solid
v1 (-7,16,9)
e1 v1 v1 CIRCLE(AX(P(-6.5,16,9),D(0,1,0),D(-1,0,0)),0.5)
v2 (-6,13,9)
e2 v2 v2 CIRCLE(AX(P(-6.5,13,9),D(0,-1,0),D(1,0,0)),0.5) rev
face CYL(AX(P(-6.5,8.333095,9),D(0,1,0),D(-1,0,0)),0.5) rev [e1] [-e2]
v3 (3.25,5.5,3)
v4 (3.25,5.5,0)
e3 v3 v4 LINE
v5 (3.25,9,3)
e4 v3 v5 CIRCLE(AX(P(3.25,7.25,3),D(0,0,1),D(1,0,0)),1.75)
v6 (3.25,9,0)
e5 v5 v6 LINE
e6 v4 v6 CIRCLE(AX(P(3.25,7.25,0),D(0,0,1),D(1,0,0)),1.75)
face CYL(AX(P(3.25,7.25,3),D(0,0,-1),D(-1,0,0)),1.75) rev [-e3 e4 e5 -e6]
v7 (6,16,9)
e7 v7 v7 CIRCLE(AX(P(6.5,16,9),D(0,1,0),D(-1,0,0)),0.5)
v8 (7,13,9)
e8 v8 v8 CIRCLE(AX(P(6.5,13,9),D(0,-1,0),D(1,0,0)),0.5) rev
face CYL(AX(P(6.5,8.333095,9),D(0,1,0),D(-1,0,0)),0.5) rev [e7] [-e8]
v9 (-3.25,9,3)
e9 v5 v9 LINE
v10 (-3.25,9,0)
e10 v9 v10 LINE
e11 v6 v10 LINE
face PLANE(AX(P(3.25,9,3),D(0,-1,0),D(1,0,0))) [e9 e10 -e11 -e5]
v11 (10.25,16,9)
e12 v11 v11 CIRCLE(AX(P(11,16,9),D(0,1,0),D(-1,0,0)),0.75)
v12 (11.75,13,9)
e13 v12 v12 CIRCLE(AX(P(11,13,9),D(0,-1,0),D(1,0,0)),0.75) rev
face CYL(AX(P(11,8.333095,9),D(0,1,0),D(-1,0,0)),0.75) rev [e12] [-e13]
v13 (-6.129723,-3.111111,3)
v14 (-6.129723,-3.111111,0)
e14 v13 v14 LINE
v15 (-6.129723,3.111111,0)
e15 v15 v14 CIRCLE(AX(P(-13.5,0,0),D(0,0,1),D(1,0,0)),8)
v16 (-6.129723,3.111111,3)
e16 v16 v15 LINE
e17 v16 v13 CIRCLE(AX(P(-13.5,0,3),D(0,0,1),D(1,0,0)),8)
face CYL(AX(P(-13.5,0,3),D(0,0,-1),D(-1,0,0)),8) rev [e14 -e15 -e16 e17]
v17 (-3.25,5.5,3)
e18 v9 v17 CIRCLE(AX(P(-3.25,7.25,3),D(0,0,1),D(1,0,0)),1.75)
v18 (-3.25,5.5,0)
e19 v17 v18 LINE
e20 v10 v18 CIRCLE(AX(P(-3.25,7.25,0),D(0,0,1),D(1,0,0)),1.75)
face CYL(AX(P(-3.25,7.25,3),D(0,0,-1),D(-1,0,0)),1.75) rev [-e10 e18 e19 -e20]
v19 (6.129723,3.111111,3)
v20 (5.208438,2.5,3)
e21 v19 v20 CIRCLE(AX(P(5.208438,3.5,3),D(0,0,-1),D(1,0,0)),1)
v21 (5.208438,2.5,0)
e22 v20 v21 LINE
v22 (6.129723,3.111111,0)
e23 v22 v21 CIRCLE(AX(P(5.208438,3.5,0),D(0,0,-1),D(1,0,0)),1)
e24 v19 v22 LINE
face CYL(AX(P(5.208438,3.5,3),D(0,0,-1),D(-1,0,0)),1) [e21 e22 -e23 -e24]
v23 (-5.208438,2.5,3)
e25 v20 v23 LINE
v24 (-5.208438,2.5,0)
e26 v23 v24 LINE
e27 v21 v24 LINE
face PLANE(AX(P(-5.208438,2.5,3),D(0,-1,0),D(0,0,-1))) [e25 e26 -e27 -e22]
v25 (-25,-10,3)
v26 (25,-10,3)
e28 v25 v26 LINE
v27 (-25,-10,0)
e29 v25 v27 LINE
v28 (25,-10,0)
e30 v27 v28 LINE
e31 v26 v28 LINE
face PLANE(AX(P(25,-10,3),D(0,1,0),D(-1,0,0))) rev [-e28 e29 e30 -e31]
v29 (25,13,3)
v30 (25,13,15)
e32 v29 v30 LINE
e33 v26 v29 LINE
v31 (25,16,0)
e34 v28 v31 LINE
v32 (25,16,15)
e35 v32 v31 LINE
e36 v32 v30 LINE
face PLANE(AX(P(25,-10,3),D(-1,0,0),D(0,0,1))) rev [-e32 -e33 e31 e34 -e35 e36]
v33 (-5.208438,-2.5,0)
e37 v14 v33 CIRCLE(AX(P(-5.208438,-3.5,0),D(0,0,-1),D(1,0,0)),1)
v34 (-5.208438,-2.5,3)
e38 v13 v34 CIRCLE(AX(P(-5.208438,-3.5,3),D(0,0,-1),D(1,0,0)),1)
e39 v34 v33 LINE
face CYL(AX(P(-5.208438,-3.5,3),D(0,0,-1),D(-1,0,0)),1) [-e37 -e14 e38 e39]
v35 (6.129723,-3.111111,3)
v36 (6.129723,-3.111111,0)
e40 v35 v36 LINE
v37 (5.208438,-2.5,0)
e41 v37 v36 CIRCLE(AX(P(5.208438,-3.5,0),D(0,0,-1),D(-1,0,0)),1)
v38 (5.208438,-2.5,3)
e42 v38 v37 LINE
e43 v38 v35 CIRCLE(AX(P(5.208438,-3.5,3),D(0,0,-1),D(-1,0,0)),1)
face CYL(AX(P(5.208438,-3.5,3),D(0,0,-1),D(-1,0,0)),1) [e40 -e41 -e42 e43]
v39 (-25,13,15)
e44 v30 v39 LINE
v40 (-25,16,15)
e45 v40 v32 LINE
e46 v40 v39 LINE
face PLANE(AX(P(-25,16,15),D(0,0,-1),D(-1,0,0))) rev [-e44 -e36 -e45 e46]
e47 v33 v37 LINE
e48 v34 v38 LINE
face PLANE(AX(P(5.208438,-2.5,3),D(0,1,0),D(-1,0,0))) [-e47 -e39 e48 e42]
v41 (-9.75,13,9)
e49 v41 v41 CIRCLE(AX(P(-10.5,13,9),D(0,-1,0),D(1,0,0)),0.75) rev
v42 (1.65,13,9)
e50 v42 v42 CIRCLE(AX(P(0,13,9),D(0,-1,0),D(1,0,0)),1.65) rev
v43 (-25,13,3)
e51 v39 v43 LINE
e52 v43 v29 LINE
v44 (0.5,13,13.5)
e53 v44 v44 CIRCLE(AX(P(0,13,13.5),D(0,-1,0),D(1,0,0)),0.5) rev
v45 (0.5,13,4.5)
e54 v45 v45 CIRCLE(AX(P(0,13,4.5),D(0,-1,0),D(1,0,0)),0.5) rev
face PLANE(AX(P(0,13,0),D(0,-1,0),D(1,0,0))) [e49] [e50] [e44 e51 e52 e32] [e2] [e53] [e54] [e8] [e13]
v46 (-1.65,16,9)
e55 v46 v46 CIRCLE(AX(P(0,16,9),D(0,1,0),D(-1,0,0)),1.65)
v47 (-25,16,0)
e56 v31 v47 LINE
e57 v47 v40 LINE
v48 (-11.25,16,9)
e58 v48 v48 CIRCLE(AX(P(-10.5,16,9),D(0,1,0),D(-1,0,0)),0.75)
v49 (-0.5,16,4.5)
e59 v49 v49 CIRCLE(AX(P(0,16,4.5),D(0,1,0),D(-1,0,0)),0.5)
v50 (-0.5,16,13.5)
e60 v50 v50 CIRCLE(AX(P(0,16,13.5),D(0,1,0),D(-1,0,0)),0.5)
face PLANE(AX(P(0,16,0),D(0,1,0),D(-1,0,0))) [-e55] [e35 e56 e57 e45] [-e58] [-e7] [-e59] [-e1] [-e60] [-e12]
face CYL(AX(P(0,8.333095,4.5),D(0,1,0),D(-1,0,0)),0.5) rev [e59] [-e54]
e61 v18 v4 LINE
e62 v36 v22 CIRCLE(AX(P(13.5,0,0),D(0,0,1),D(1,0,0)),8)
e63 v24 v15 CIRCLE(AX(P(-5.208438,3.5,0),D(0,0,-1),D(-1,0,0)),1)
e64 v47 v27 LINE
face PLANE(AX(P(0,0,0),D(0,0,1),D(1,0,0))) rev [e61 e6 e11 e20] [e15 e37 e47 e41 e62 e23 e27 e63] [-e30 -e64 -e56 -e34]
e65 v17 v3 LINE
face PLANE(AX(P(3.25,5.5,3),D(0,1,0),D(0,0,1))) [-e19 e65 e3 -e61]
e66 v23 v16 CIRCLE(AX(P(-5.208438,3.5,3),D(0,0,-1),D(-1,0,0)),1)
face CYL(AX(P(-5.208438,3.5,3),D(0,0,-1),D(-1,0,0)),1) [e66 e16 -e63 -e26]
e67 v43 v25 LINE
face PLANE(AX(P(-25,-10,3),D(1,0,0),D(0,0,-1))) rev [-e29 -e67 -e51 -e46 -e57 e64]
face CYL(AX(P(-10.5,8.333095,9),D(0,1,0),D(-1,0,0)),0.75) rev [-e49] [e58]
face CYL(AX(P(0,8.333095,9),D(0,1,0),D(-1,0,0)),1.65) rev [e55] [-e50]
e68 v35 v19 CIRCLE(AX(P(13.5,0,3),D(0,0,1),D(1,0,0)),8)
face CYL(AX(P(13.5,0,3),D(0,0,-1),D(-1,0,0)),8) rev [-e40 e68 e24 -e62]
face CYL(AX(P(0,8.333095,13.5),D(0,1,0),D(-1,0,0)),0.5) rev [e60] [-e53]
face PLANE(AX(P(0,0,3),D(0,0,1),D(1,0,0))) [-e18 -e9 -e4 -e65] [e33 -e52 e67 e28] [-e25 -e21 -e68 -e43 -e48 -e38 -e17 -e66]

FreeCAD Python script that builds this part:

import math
import FreeCAD as App
import Part
import Sketcher
from FreeCAD import Vector
Q = App.Units.Quantity

doc = App.newDocument("Part")
body = doc.addObject("PartDesign::Body", "Body")

sketch1 = body.newObject("Sketcher::SketchObject", "Sketch")
sketch1.AttachmentSupport = (doc.getObject("XY_Plane"), [""])
sketch1.MapMode = "FlatFace"
sketch1.addGeometry(Part.LineSegment(Vector(-25, 10, 0), Vector(-25, -10, 0)), False)
sketch1.addGeometry(Part.LineSegment(Vector(-25, -10, 0), Vector(25, -10, 0)), False)
sketch1.addGeometry(Part.LineSegment(Vector(25, -10, 0), Vector(25, 10, 0)), False)
sketch1.addGeometry(Part.LineSegment(Vector(25, 10, 0), Vector(-25, 10, 0)), False)
sketch1.addGeometry(Part.ArcOfCircle(Part.Circle(Vector(-5.2, 3.5, 0), Vector(0, 0, 1), 1), math.radians(-157), math.radians(-90)), False)
sketch1.addGeometry(Part.LineSegment(Vector(-5.2, 2.5, 0), Vector(5.2, 2.5, 0)), False)
sketch1.addGeometry(Part.ArcOfCircle(Part.Circle(Vector(5.2, 3.5, 0), Vector(0, 0, 1), 1), math.radians(-90), math.radians(-23)), False)
sketch1.addGeometry(Part.ArcOfCircle(Part.Circle(Vector(13.5, 0, 0), Vector(0, 0, 1), 8), math.radians(-157), math.radians(157)), False)
sketch1.addGeometry(Part.ArcOfCircle(Part.Circle(Vector(5.2, -3.5, 0), Vector(0, 0, 1), 1), math.radians(23), math.radians(90)), False)
sketch1.addGeometry(Part.LineSegment(Vector(5.2, -2.5, 0), Vector(-5.2, -2.5, 0)), False)
sketch1.addGeometry(Part.ArcOfCircle(Part.Circle(Vector(-5.2, -3.5, 0), Vector(0, 0, 1), 1), math.radians(90), math.radians(157)), False)
sketch1.addGeometry(Part.ArcOfCircle(Part.Circle(Vector(-13.5, 0, 0), Vector(0, 0, 1), 8), math.radians(23), math.radians(337)), False)
sketch1.addGeometry(Part.ArcOfCircle(Part.Circle(Vector(3.2, 7.2, 0), Vector(0, 0, 1), 1.8), math.radians(-90), math.radians(90)), False)
sketch1.addGeometry(Part.LineSegment(Vector(3.2, 5.5, 0), Vector(-3.2, 5.5, 0)), False)
sketch1.addGeometry(Part.ArcOfCircle(Part.Circle(Vector(-3.2, 7.2, 0), Vector(0, 0, 1), 1.8), math.radians(90), math.radians(270)), False)
sketch1.addGeometry(Part.LineSegment(Vector(-3.2, 9, 0), Vector(3.2, 9, 0)), False)
sketch1.addConstraint(Sketcher.Constraint("Coincident", 0, 2, 1, 1))
sketch1.addConstraint(Sketcher.Constraint("Coincident", 1, 2, 2, 1))
sketch1.addConstraint(Sketcher.Constraint("Coincident", 2, 2, 3, 1))
sketch1.addConstraint(Sketcher.Constraint("Coincident", 3, 2, 0, 1))
sketch1.addConstraint(Sketcher.Constraint("Tangent", 4, 2, 5, 1))
sketch1.addConstraint(Sketcher.Constraint("Tangent", 5, 2, 6, 1))
sketch1.addConstraint(Sketcher.Constraint("Tangent", 6, 2, 7, 2))
sketch1.addConstraint(Sketcher.Constraint("Tangent", 7, 1, 8, 1))
sketch1.addConstraint(Sketcher.Constraint("Tangent", 8, 2, 9, 1))
sketch1.addConstraint(Sketcher.Constraint("Tangent", 9, 2, 10, 1))
sketch1.addConstraint(Sketcher.Constraint("Tangent", 10, 2, 11, 2))
sketch1.addConstraint(Sketcher.Constraint("Tangent", 11, 1, 4, 1))
sketch1.addConstraint(Sketcher.Constraint("Tangent", 12, 1, 13, 1))
sketch1.addConstraint(Sketcher.Constraint("Tangent", 13, 2, 14, 2))
sketch1.addConstraint(Sketcher.Constraint("Tangent", 14, 1, 15, 1))
sketch1.addConstraint(Sketcher.Constraint("Tangent", 15, 2, 12, 2))
sketch1.addConstraint(Sketcher.Constraint("Vertical", 0))
sketch1.addConstraint(Sketcher.Constraint("Horizontal", 1))
sketch1.addConstraint(Sketcher.Constraint("Vertical", 2))
sketch1.addConstraint(Sketcher.Constraint("Horizontal", 3))
sketch1.addConstraint(Sketcher.Constraint("Horizontal", 5))
sketch1.addConstraint(Sketcher.Constraint("Horizontal", 9))
sketch1.addConstraint(Sketcher.Constraint("Horizontal", 13))
sketch1.addConstraint(Sketcher.Constraint("Horizontal", 15))
sketch1.addConstraint(Sketcher.Constraint("Equal", 4, 6))
sketch1.addConstraint(Sketcher.Constraint("Equal", 6, 8))
sketch1.addConstraint(Sketcher.Constraint("Equal", 8, 10))
sketch1.addConstraint(Sketcher.Constraint("Equal", 7, 11))
sketch1.addConstraint(Sketcher.Constraint("Symmetric", 4, 3, 8, 3, -1, 1))
sketch1.addConstraint(Sketcher.Constraint("Symmetric", 0, 2, 2, 2, -1, 1))
sketch1.addConstraint(Sketcher.Constraint("Symmetric", 7, 3, 11, 3, -2))
sketch1.addConstraint(Sketcher.Constraint("Radius", 4, Q("1 mm")))
sketch1.addConstraint(Sketcher.Constraint("Radius", 7, Q("8 mm")))
sketch1.addConstraint(Sketcher.Constraint("DistanceX", 1, 1, 1, 2, Q("50 mm")))
sketch1.addConstraint(Sketcher.Constraint("DistanceY", 0, 2, 0, 1, Q("20 mm")))
sketch1.addConstraint(Sketcher.Constraint("Radius", 12, Q("1.75 mm")))
sketch1.addConstraint(Sketcher.Constraint("DistanceX", 13, 2, 13, 1, Q("6.5 mm")))
sketch1.addConstraint(Sketcher.Constraint("DistanceY", -1, 1, 14, 1, Q("9 mm")))
sketch1.addConstraint(Sketcher.Constraint("DistanceY", 8, 3, 6, 3, Q("7 mm")))
sketch1.addConstraint(Sketcher.Constraint("DistanceX", 11, 3, 7, 3, Q("27 mm")))
sketch1.addConstraint(Sketcher.Constraint("DistanceX", -1, 1, 12, 3, Q("3.25 mm")))
pad1 = body.newObject("PartDesign::Pad", "Pad")
pad1.Profile = sketch1
pad1.Length = 3

sketch2 = body.newObject("Sketcher::SketchObject", "Sketch001")
sketch2.AttachmentSupport = (doc.getObject("XZ_Plane"), [""])
sketch2.MapMode = "FlatFace"
sketch2.AttachmentOffset = App.Placement(Vector(0, 0, -10), App.Rotation())
sketch2.addGeometry(Part.LineSegment(Vector(-25, 0, 0), Vector(-25, 15, 0)), False)
sketch2.addGeometry(Part.LineSegment(Vector(-25, 15, 0), Vector(25, 15, 0)), False)
sketch2.addGeometry(Part.LineSegment(Vector(25, 15, 0), Vector(25, 0, 0)), False)
sketch2.addGeometry(Part.LineSegment(Vector(25, 0, 0), Vector(-25, 0, 0)), False)
sketch2.addConstraint(Sketcher.Constraint("Coincident", 0, 2, 1, 1))
sketch2.addConstraint(Sketcher.Constraint("Coincident", 1, 2, 2, 1))
sketch2.addConstraint(Sketcher.Constraint("Coincident", 2, 2, 3, 1))
sketch2.addConstraint(Sketcher.Constraint("Coincident", 3, 2, 0, 1))
sketch2.addConstraint(Sketcher.Constraint("Vertical", 0))
sketch2.addConstraint(Sketcher.Constraint("Horizontal", 1))
sketch2.addConstraint(Sketcher.Constraint("Vertical", 2))
sketch2.addConstraint(Sketcher.Constraint("Horizontal", 3))
sketch2.addConstraint(Sketcher.Constraint("Symmetric", 2, 2, 3, 2, -1, 1))
sketch2.addConstraint(Sketcher.Constraint("DistanceX", 1, 1, 1, 2, Q("50 mm")))
sketch2.addConstraint(Sketcher.Constraint("DistanceY", 0, 1, 0, 2, Q("15 mm")))
pad2 = body.newObject("PartDesign::Pad", "Pad001")
pad2.Profile = sketch2
pad2.Length = 6
pad2.Reversed = True

sketch3 = body.newObject("Sketcher::SketchObject", "Sketch002")
sketch3.AttachmentSupport = (doc.getObject("XZ_Plane"), [""])
sketch3.MapMode = "FlatFace"
sketch3.AttachmentOffset = App.Placement(Vector(0, 0, -10), App.Rotation())
sketch3.addGeometry(Part.LineSegment(Vector(-25, 15, 0), Vector(-25, 3, 0)), False)
sketch3.addGeometry(Part.LineSegment(Vector(-25, 3, 0), Vector(25, 3, 0)), False)
sketch3.addGeometry(Part.LineSegment(Vector(25, 3, 0), Vector(25, 15, 0)), False)
sketch3.addGeometry(Part.LineSegment(Vector(25, 15, 0), Vector(-25, 15, 0)), False)
sketch3.addConstraint(Sketcher.Constraint("Coincident", 0, 2, 1, 1))
sketch3.addConstraint(Sketcher.Constraint("Coincident", 1, 2, 2, 1))
sketch3.addConstraint(Sketcher.Constraint("Coincident", 2, 2, 3, 1))
sketch3.addConstraint(Sketcher.Constraint("Coincident", 3, 2, 0, 1))
sketch3.addConstraint(Sketcher.Constraint("Vertical", 0))
sketch3.addConstraint(Sketcher.Constraint("Horizontal", 1))
sketch3.addConstraint(Sketcher.Constraint("Vertical", 2))
sketch3.addConstraint(Sketcher.Constraint("Horizontal", 3))
sketch3.addConstraint(Sketcher.Constraint("DistanceX", 1, 1, 1, 2, Q("50 mm")))
sketch3.addConstraint(Sketcher.Constraint("DistanceY", 0, 2, 0, 1, Q("12 mm")))
sketch3.addConstraint(Sketcher.Constraint("DistanceX", 0, 2, -1, 1, Q("25 mm")))
sketch3.addConstraint(Sketcher.Constraint("DistanceY", -1, 1, 0, 2, Q("3 mm")))
pocket1 = body.newObject("PartDesign::Pocket", "Pocket")
pocket1.Profile = sketch3
pocket1.Length = 3

sketch4 = body.newObject("Sketcher::SketchObject", "Sketch003")
sketch4.AttachmentSupport = (doc.getObject("XZ_Plane"), [""])
sketch4.MapMode = "FlatFace"
sketch4.AttachmentOffset = App.Placement(Vector(0, 0, -16), App.Rotation())
sketch4.addGeometry(Part.Circle(Vector(0, 9, 0), Vector(0, 0, 1), 1.6), False)
sketch4.addGeometry(Part.Circle(Vector(6.5, 9, 0), Vector(0, 0, 1), 0.5), False)
sketch4.addGeometry(Part.Circle(Vector(-6.5, 9, 0), Vector(0, 0, 1), 0.5), False)
sketch4.addGeometry(Part.Circle(Vector(11, 9, 0), Vector(0, 0, 1), 0.8), False)
sketch4.addGeometry(Part.Circle(Vector(-10.5, 9, 0), Vector(0, 0, 1), 0.8), False)
sketch4.addGeometry(Part.Circle(Vector(0, 4.5, 0), Vector(0, 0, 1), 0.5), False)
sketch4.addGeometry(Part.Circle(Vector(0, 13.5, 0), Vector(0, 0, 1), 0.5), False)
sketch4.addConstraint(Sketcher.Constraint("Equal", 1, 2))
sketch4.addConstraint(Sketcher.Constraint("Equal", 3, 4))
sketch4.addConstraint(Sketcher.Constraint("Equal", 2, 5))
sketch4.addConstraint(Sketcher.Constraint("Equal", 5, 6))
sketch4.addConstraint(Sketcher.Constraint("Symmetric", 1, 3, 2, 3, -2))
sketch4.addConstraint(Sketcher.Constraint("PointOnObject", 0, 3, -2))
sketch4.addConstraint(Sketcher.Constraint("PointOnObject", 5, 3, -2))
sketch4.addConstraint(Sketcher.Constraint("PointOnObject", 6, 3, -2))
sketch4.addConstraint(Sketcher.Constraint("Horizontal", 0, 3, 1, 3))
sketch4.addConstraint(Sketcher.Constraint("Horizontal", 2, 3, 3, 3))
sketch4.addConstraint(Sketcher.Constraint("Horizontal", 3, 3, 4, 3))
sketch4.addConstraint(Sketcher.Constraint("Diameter", 1, Q("1 mm")))
sketch4.addConstraint(Sketcher.Constraint("Diameter", 0, Q("3.3 mm")))
sketch4.addConstraint(Sketcher.Constraint("Diameter", 3, Q("1.5 mm")))
sketch4.addConstraint(Sketcher.Constraint("DistanceY", -1, 1, 0, 3, Q("9 mm")))
sketch4.addConstraint(Sketcher.Constraint("DistanceX", -1, 1, 3, 3, Q("11 mm")))
sketch4.addConstraint(Sketcher.Constraint("DistanceX", 2, 3, 1, 3, Q("13 mm")))
sketch4.addConstraint(Sketcher.Constraint("DistanceX", 4, 3, 2, 3, Q("4 mm")))
sketch4.addConstraint(Sketcher.Constraint("DistanceY", 5, 3, 6, 3, Q("9 mm")))
sketch4.addConstraint(Sketcher.Constraint("DistanceY", -1, 1, 5, 3, Q("4.5 mm")))
pocket2 = body.newObject("PartDesign::Pocket", "Pocket001")
pocket2.Profile = sketch4
pocket2.Length = 3
pocket2.Reversed = True

doc.recompute()
